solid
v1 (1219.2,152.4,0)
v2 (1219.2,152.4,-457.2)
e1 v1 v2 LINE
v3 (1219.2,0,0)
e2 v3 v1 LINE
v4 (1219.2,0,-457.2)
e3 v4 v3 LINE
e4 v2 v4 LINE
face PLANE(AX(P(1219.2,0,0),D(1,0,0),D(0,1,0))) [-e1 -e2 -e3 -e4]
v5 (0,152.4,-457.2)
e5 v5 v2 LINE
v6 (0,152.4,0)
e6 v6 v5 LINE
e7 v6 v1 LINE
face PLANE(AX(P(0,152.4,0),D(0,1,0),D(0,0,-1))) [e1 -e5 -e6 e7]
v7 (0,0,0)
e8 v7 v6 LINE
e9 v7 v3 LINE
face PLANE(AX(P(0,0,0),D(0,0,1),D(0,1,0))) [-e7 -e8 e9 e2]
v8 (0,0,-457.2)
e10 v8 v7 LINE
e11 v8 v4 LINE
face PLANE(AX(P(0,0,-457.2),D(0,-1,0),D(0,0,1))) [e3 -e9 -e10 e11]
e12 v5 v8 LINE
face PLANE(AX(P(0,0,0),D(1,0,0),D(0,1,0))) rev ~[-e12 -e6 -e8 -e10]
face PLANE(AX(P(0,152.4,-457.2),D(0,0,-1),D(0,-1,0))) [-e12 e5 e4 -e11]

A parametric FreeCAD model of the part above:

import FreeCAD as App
import Part
import Sketcher

V = App.Vector
Q = App.Units.Quantity

doc = App.newDocument("Part")
body = doc.addObject("PartDesign::Body", "Body")

sketch1 = doc.addObject("Sketcher::SketchObject", "Sketch")
body.addObject(sketch1)
sketch1.AttachmentSupport = (doc.YZ_Plane, [""])
sketch1.MapMode = "FlatFace"
sketch1.addGeometry(Part.LineSegment(V(152, 0, 0), V(0, 0, 0)), False)
sketch1.addGeometry(Part.LineSegment(V(0, 0, 0), V(0, -457, 0)), False)
sketch1.addGeometry(Part.LineSegment(V(0, -457, 0), V(152, -457, 0)), False)
sketch1.addGeometry(Part.LineSegment(V(152, -457, 0), V(152, 0, 0)), False)
sketch1.addConstraint(Sketcher.Constraint("Coincident", 0, 2, 1, 1))
sketch1.addConstraint(Sketcher.Constraint("Coincident", 1, 2, 2, 1))
sketch1.addConstraint(Sketcher.Constraint("Coincident", 2, 2, 3, 1))
sketch1.addConstraint(Sketcher.Constraint("Coincident", 3, 2, 0, 1))
sketch1.addConstraint(Sketcher.Constraint("Horizontal", 0))
sketch1.addConstraint(Sketcher.Constraint("Vertical", 1))
sketch1.addConstraint(Sketcher.Constraint("Horizontal", 2))
sketch1.addConstraint(Sketcher.Constraint("Vertical", 3))
sketch1.addConstraint(Sketcher.Constraint("Coincident", 0, 2, -1, 1))
sketch1.addConstraint(Sketcher.Constraint("DistanceX", 0, 2, 0, 1, Q("6 in")))
sketch1.addConstraint(Sketcher.Constraint("DistanceY", 1, 2, 1, 1, Q("18 in")))
pad1 = doc.addObject("PartDesign::Pad", "Pad")
body.addObject(pad1)
pad1.Profile = sketch1
pad1.Length = Q("48 in")

doc.recompute()
